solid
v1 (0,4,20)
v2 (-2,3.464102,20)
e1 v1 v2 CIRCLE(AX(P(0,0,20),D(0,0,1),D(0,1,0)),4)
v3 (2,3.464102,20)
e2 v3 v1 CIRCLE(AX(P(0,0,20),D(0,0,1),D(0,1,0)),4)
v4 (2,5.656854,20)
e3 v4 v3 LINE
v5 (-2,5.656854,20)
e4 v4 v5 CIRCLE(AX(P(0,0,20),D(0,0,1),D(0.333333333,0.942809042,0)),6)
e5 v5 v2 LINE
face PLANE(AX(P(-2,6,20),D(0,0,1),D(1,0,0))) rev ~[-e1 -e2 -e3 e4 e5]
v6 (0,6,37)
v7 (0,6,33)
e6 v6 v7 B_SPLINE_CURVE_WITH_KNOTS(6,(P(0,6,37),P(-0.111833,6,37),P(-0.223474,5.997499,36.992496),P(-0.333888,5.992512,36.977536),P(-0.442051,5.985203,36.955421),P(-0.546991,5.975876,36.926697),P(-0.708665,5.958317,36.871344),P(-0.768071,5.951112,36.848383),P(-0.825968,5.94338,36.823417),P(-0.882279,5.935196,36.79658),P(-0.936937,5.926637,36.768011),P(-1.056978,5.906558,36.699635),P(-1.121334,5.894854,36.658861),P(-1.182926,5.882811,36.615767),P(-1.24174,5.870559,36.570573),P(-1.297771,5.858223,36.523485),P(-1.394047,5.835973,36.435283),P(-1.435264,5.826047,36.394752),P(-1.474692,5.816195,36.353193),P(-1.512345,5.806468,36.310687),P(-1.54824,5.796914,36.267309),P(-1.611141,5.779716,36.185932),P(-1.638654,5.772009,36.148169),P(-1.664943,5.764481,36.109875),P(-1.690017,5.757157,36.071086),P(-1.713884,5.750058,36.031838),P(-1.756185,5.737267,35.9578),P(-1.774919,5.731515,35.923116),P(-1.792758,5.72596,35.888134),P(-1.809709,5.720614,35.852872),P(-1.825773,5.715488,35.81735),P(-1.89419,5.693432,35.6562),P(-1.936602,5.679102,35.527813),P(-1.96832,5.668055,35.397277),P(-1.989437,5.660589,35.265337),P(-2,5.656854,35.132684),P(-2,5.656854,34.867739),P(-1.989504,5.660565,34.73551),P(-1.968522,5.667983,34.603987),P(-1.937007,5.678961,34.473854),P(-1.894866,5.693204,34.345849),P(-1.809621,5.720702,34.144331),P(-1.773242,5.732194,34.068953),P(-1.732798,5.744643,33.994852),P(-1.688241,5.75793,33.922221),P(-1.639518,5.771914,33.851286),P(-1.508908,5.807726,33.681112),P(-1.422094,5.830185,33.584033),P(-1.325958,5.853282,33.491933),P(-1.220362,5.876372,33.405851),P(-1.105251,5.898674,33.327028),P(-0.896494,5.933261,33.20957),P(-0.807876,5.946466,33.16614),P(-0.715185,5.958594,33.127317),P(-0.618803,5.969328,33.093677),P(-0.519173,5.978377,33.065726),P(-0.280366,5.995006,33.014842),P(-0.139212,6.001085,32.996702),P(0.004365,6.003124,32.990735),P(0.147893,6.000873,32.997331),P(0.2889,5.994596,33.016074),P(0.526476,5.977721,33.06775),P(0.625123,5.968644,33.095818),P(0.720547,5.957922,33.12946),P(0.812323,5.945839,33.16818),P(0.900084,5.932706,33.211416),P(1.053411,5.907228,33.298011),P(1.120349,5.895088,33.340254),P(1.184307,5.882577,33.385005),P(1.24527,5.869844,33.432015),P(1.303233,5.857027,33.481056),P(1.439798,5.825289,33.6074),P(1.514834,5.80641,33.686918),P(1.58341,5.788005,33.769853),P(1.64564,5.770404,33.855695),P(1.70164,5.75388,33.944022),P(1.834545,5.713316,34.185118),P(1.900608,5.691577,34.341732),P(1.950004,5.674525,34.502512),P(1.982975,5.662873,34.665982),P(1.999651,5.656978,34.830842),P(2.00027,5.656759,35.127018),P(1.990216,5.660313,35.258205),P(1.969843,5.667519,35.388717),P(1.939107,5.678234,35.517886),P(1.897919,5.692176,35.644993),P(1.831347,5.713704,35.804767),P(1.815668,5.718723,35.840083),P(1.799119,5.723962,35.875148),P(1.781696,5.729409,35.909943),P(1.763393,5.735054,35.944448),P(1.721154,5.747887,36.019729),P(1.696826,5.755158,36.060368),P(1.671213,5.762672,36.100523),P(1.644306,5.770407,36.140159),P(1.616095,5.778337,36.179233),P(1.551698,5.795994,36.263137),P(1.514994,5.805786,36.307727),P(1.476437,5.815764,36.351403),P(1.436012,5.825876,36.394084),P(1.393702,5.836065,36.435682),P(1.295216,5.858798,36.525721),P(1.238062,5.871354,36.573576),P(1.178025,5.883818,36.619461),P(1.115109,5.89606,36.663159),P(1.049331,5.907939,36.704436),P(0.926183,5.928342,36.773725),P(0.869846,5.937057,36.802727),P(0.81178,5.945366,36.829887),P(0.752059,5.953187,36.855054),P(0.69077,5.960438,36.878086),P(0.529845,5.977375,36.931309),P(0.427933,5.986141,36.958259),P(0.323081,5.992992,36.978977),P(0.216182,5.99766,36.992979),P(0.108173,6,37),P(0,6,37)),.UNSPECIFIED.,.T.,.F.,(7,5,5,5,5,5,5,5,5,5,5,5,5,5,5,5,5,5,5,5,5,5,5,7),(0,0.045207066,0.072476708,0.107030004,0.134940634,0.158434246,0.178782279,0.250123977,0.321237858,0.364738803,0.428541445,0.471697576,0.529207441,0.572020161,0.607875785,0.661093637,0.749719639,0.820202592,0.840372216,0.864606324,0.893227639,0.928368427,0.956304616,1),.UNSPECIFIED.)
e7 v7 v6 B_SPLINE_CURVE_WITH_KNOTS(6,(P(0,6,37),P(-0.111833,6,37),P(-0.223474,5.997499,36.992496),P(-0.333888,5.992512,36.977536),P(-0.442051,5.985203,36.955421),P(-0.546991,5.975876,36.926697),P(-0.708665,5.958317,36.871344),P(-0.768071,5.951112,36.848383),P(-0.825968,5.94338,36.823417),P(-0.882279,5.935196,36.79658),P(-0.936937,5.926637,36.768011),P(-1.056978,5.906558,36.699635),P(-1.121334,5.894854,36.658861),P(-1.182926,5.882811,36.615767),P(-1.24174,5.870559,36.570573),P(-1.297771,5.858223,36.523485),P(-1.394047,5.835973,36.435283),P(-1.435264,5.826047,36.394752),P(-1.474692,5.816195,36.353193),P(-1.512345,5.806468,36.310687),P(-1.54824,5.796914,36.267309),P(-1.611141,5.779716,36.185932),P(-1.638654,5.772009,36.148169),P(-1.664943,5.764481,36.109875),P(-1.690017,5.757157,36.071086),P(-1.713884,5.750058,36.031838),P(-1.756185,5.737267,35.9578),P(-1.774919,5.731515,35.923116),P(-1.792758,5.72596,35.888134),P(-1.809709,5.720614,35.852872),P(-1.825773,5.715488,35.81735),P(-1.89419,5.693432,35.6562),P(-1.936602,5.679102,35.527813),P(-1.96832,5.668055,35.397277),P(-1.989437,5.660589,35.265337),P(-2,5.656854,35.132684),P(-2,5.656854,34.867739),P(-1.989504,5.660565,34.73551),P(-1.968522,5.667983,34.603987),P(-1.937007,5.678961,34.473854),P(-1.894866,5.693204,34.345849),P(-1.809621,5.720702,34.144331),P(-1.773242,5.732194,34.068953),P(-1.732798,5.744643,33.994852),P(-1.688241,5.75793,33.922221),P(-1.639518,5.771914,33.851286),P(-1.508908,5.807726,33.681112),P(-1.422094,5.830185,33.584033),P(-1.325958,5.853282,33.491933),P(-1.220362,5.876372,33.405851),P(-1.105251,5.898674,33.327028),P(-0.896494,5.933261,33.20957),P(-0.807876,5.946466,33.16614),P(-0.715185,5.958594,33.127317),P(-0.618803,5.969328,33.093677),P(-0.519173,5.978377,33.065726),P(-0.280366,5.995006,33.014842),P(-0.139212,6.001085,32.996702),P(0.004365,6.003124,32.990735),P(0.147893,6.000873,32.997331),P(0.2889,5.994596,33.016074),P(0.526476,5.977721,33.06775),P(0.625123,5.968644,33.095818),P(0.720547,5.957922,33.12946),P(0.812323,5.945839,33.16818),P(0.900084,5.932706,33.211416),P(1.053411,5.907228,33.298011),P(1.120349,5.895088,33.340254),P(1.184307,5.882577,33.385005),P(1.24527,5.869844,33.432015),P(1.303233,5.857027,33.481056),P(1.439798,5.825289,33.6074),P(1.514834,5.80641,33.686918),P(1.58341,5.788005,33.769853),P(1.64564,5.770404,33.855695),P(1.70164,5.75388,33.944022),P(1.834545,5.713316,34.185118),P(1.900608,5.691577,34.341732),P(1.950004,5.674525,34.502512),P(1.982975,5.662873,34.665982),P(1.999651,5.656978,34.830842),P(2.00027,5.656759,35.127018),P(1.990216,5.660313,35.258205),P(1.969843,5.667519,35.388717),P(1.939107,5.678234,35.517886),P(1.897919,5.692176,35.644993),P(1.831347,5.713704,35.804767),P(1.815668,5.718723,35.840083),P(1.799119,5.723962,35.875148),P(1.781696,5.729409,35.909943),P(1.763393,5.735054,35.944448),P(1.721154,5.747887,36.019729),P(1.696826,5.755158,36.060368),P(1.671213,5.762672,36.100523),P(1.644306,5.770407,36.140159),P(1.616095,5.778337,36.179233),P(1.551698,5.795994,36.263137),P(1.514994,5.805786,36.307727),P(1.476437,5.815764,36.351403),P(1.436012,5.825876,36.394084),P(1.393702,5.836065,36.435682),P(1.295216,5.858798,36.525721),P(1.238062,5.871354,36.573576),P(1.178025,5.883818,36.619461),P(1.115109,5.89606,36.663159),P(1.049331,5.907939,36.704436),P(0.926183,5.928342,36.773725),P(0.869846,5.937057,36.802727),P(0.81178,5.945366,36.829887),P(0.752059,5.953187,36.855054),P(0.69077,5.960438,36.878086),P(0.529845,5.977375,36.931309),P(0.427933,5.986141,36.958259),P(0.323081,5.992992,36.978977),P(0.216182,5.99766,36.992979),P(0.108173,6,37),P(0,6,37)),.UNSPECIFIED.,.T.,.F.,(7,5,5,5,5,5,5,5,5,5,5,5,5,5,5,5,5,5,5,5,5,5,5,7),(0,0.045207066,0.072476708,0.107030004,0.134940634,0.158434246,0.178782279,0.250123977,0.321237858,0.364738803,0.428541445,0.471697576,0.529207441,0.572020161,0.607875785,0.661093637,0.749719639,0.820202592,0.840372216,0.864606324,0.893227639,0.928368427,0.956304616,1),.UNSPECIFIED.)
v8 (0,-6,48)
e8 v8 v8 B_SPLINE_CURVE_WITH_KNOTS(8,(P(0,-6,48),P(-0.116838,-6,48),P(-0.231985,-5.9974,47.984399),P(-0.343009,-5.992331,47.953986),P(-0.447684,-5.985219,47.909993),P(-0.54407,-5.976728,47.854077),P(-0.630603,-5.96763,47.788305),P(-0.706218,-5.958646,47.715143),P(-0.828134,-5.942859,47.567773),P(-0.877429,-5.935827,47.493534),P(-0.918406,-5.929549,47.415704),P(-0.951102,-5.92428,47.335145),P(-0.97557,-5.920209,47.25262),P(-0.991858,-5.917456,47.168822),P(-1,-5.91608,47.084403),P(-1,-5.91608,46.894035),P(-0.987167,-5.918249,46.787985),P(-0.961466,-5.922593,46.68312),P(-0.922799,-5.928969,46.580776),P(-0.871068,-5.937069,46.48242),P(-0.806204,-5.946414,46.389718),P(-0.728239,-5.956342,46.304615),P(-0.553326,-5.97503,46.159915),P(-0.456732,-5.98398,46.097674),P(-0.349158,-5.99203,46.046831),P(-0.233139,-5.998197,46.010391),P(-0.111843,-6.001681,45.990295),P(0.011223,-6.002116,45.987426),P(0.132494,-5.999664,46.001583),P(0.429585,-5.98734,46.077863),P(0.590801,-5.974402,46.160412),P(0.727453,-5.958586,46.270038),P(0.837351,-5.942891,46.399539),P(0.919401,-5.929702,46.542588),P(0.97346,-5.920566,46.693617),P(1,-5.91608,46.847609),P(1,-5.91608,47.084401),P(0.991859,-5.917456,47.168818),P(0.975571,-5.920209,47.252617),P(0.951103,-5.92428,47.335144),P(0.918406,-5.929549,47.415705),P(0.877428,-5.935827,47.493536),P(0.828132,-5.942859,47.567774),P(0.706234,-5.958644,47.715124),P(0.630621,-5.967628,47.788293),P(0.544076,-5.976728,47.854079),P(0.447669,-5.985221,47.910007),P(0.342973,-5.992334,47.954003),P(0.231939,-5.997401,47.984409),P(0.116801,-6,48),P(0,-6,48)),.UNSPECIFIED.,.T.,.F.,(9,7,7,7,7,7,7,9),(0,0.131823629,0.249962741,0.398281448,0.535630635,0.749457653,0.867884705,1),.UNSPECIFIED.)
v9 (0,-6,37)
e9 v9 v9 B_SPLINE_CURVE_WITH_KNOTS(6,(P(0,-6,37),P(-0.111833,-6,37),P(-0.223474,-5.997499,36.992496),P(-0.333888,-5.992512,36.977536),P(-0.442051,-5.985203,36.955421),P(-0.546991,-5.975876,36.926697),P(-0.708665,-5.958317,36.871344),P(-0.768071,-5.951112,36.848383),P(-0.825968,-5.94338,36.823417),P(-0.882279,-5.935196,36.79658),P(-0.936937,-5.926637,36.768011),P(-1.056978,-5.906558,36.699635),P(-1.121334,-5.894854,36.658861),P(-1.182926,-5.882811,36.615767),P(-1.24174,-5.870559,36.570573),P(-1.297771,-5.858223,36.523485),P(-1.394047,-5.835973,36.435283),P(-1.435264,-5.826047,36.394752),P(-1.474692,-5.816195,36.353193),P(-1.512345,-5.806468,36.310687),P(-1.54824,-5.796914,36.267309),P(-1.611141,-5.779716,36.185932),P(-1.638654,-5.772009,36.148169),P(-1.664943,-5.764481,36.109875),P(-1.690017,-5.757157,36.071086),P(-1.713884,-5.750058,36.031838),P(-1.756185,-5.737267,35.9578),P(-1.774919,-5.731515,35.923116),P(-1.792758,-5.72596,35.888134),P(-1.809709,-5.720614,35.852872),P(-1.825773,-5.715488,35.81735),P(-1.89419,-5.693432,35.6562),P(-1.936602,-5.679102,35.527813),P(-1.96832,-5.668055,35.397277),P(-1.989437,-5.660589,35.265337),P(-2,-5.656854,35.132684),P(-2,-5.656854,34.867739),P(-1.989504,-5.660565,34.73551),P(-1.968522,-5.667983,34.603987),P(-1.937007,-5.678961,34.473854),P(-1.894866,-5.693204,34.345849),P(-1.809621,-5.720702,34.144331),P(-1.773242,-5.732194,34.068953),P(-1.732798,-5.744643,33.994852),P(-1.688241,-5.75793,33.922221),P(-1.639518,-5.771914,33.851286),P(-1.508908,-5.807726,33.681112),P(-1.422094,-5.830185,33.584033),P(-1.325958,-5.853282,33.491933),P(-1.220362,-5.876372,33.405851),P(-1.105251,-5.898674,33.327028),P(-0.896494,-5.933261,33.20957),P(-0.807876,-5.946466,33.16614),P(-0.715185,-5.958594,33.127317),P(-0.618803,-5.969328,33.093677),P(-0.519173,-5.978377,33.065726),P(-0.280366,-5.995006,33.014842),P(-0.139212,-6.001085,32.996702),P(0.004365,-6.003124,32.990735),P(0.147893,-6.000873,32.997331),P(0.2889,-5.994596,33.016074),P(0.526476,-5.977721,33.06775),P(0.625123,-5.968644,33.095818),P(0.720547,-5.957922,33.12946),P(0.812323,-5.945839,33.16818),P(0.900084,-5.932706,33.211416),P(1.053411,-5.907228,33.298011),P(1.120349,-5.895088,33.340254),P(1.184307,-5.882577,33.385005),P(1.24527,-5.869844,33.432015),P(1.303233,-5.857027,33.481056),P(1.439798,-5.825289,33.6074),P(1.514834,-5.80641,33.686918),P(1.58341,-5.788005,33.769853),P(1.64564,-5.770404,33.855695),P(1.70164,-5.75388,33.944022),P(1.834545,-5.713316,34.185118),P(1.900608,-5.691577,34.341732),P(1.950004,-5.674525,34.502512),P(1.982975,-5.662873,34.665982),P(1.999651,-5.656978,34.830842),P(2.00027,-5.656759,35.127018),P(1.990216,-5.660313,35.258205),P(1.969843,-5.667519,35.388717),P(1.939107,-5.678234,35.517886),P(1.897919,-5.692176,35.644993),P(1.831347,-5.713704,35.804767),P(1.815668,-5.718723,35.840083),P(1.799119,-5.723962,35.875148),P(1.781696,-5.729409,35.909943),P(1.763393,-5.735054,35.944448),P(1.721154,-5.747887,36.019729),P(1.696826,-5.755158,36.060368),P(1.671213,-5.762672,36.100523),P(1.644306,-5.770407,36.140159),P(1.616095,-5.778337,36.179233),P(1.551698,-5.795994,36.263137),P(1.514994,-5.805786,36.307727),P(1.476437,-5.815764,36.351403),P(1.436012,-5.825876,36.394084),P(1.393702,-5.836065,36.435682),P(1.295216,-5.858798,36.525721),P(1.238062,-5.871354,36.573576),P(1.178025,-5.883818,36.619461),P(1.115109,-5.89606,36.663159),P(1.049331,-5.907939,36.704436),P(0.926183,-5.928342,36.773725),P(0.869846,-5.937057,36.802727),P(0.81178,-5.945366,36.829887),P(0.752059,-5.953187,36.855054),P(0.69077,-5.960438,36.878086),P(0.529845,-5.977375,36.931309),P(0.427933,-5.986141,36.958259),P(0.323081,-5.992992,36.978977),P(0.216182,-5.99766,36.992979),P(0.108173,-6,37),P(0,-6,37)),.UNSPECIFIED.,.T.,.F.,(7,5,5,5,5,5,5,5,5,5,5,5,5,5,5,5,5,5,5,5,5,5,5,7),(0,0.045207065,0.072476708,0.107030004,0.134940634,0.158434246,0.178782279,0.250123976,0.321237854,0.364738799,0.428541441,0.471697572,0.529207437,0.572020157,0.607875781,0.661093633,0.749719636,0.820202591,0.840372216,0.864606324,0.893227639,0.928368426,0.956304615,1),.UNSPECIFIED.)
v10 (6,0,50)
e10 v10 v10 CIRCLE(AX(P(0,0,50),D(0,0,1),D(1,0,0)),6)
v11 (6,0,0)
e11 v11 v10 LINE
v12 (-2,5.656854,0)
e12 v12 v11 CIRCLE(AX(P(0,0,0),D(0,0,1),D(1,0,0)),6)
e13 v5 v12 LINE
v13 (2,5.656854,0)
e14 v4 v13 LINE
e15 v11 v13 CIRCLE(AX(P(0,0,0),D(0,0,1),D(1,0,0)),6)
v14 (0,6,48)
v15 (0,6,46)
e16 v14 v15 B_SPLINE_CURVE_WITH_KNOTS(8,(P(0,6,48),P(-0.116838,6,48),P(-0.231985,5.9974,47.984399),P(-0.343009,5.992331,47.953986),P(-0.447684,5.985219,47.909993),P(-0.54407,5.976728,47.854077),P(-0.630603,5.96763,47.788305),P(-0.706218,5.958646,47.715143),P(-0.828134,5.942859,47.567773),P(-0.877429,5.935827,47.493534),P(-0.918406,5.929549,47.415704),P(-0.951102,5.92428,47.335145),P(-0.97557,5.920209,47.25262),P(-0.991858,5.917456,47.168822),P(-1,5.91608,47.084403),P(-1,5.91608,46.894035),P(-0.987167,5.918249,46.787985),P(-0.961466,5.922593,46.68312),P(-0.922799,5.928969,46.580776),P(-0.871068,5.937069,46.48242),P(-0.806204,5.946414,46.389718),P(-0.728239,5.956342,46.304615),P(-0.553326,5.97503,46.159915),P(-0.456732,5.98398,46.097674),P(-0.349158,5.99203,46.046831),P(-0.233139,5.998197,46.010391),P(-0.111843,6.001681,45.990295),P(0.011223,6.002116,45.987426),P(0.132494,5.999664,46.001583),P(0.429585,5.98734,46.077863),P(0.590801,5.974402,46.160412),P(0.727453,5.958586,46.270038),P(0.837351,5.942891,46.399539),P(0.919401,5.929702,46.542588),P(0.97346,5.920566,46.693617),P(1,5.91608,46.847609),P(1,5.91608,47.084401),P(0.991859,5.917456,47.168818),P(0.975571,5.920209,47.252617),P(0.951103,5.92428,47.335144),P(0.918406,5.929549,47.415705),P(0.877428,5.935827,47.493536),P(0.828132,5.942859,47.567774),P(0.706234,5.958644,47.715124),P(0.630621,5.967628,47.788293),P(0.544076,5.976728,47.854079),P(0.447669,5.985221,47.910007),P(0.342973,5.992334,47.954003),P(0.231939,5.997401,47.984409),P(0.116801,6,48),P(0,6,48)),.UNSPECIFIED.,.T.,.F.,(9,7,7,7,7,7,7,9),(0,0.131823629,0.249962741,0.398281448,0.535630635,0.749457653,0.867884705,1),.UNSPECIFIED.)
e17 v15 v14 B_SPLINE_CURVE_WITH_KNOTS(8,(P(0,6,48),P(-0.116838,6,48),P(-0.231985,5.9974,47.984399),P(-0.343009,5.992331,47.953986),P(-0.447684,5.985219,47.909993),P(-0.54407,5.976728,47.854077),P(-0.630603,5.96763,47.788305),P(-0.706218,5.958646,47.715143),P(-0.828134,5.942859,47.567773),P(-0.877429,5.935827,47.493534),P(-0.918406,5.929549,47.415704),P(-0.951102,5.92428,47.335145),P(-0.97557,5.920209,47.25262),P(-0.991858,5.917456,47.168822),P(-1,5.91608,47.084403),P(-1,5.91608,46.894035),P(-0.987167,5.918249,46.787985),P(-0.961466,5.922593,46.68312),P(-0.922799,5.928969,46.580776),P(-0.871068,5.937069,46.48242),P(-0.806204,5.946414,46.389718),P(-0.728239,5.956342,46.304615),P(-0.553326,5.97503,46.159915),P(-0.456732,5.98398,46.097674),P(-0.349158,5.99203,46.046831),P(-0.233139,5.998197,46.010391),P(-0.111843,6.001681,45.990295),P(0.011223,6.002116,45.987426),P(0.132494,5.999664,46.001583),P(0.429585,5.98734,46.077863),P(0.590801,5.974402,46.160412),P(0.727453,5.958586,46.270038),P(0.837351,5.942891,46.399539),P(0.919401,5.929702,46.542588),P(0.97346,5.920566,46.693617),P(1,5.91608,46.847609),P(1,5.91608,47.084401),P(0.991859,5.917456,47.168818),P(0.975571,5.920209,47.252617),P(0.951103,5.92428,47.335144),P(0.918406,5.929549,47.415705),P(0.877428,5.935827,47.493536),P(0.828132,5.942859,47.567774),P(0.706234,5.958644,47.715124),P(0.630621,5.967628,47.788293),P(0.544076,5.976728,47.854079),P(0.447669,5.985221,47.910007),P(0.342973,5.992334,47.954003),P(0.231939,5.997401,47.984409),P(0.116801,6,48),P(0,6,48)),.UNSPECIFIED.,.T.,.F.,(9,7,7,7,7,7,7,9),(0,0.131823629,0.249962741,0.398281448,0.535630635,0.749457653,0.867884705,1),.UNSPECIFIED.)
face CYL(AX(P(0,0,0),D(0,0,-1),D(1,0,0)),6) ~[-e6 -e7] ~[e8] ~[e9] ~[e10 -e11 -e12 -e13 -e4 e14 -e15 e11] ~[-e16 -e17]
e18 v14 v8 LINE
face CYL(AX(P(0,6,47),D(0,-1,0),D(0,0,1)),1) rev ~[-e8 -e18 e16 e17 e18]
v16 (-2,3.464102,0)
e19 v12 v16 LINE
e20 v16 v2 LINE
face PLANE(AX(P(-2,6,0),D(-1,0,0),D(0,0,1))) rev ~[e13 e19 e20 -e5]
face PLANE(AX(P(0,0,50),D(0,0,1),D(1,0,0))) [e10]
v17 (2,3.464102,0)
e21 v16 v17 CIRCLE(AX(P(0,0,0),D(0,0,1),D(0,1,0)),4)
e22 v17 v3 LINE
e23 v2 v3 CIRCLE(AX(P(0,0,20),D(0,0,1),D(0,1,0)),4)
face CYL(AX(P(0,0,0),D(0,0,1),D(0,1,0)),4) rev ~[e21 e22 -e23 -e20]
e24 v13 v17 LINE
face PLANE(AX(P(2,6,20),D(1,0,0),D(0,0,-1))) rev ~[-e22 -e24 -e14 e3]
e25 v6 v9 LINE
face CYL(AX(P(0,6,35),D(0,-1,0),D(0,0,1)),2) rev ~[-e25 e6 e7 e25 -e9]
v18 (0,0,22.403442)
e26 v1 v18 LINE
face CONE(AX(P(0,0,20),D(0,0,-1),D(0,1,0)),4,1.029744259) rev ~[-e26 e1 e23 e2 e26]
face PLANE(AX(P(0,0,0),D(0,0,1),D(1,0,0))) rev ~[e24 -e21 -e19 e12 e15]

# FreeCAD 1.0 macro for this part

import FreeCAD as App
import Part
import Sketcher
from FreeCAD import Vector
Q = App.Units.Quantity


def add_polygon(sketch, points):
    """Adds a closed chain of lines whose ends are joined by coincident constraints."""
    first, n = sketch.GeometryCount, len(points)
    for a, b in zip(points, points[1:] + points[:1]):
        sketch.addGeometry(Part.LineSegment(App.Vector(*a, 0), App.Vector(*b, 0)), False)
    for i in range(n):
        sketch.addConstraint(Sketcher.Constraint("Coincident", first + i, 2, first + (i + 1) % n, 1))

doc = App.newDocument("Part")
body = doc.addObject("PartDesign::Body", "Body")

# Sketch on XY plane
sketch1 = body.newObject("Sketcher::SketchObject", "Sketch")
sketch1.AttachmentSupport = (doc.getObject("XY_Plane"), [""])
sketch1.MapMode = "FlatFace"
sketch1.addGeometry(Part.Circle(Vector(0, 0, 0), Vector(0, 0, 1), 6), False)
sketch1.addConstraint([
    Sketcher.Constraint("Coincident", 0, 3, -1, 1),
    Sketcher.Constraint("Diameter", 0, Q("12 mm")),
])
pad1 = body.newObject("PartDesign::Pad", "Pad")
pad1.Profile = sketch1
pad1.Length = 50

# Sketch on XZ plane
sketch2 = body.newObject("Sketcher::SketchObject", "Sketch001")
sketch2.AttachmentSupport = (doc.getObject("XZ_Plane"), [""])
sketch2.MapMode = "FlatFace"
sketch2.AttachmentOffset = App.Placement(Vector(0, 0, -6), App.Rotation())
add_polygon(sketch2, [(-2, 20), (2, 20), (2, 0), (-2, 0)])  # lines 0-3
sketch2.addConstraint([
    Sketcher.Constraint("Horizontal", 0),
    Sketcher.Constraint("Vertical", 1),
    Sketcher.Constraint("Horizontal", 2),
    Sketcher.Constraint("Vertical", 3),
    Sketcher.Constraint("Symmetric", 1, 2, 2, 2, -1, 1),
    Sketcher.Constraint("DistanceY", 1, 2, 1, 1, Q("20 mm")),
    Sketcher.Constraint("DistanceX", -1, 1, 0, 2, Q("2 mm")),
])
pocket1 = body.newObject("PartDesign::Pocket", "Pocket")
pocket1.Profile = sketch2
pocket1.Length = 6
pocket1.Reversed = True

# Sketch on XY plane
sketch3 = body.newObject("Sketcher::SketchObject", "Sketch002")
sketch3.AttachmentSupport = (doc.getObject("XY_Plane"), [""])
sketch3.MapMode = "FlatFace"
sketch3.addGeometry(Part.Circle(Vector(0, 0, 0), Vector(0, 0, 1), 4), False)
sketch3.addConstraint([
    Sketcher.Constraint("Coincident", 0, 3, -1, 1),
    Sketcher.Constraint("Diameter", 0, Q("8 mm")),
])
doc.recompute()
hole = body.newObject("PartDesign::Hole", "Hole")
hole.Profile = sketch3
hole.ThreadType = "None"
hole.Diameter = 8
hole.DepthType = "Dimension"
hole.Depth = 20
hole.DrillPoint = "Angled"
hole.DrillPointAngle = 118
hole.Reversed = True

# Sketch on XZ plane
sketch4 = body.newObject("Sketcher::SketchObject", "Sketch003")
sketch4.AttachmentSupport = (doc.getObject("XZ_Plane"), [""])
sketch4.MapMode = "FlatFace"
sketch4.AttachmentOffset = App.Placement(Vector(0, 0, -6), App.Rotation())
sketch4.addGeometry(Part.Circle(Vector(0, 35, 0), Vector(0, 0, 1), 2), False)
sketch4.addConstraint([
    Sketcher.Constraint("PointOnObject", 0, 3, -2),
    Sketcher.Constraint("Diameter", 0, Q("4 mm")),
    Sketcher.Constraint("DistanceY", -1, 1, 0, 3, Q("35 mm")),
])
doc.recompute()
hole2 = body.newObject("PartDesign::Hole", "Hole001")
hole2.Profile = sketch4
hole2.ThreadType = "None"
hole2.Diameter = 4
hole2.DepthType = "ThroughAll"
hole2.Reversed = True

# Sketch on XZ plane
sketch5 = body.newObject("Sketcher::SketchObject", "Sketch004")
sketch5.AttachmentSupport = (doc.getObject("XZ_Plane"), [""])
sketch5.MapMode = "FlatFace"
sketch5.AttachmentOffset = App.Placement(Vector(0, 0, -6), App.Rotation())
sketch5.addGeometry(Part.Circle(Vector(0, 47, 0), Vector(0, 0, 1), 1), False)
sketch5.addConstraint([
    Sketcher.Constraint("PointOnObject", 0, 3, -2),
    Sketcher.Constraint("Diameter", 0, Q("2 mm")),
    Sketcher.Constraint("DistanceY", -1, 1, 0, 3, Q("47 mm")),
])
doc.recompute()
hole3 = body.newObject("PartDesign::Hole", "Hole002")
hole3.Profile = sketch5
hole3.ThreadType = "None"
hole3.Diameter = 2
hole3.DepthType = "ThroughAll"
hole3.Reversed = True

doc.recompute()
